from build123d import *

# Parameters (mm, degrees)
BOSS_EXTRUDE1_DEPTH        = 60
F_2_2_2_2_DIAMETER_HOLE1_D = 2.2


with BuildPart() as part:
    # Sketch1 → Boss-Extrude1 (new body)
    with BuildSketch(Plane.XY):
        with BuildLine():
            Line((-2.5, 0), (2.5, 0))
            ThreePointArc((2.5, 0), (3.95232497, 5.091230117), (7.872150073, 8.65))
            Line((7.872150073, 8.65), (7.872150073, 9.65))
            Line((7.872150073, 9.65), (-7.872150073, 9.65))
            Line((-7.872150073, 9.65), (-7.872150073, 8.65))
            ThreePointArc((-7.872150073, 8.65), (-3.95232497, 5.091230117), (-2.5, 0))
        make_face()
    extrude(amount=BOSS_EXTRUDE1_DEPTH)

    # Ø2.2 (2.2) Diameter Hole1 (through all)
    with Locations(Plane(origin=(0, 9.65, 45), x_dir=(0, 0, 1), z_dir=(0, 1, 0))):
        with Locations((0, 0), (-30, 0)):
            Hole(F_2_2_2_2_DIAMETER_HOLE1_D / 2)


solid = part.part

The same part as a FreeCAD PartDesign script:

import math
import FreeCAD as App
import Part
import Sketcher
from FreeCAD import Vector

doc = App.newDocument("Part")
body = doc.addObject("PartDesign::Body", "Body")

# Sketch on XY plane
sketch1 = body.newObject("Sketcher::SketchObject", "Sketch")
sketch1.AttachmentSupport = (doc.getObject("XY_Plane"), [""])
sketch1.MapMode = "FlatFace"
sketch1.addGeometry(Part.LineSegment(Vector(-2.5, 0, 0), Vector(2.5, 0, 0)), False)
sketch1.addGeometry(Part.ArcOfCircle(Part.Circle(Vector(12.15, 0, 0), Vector(0, 0, 1), 9.65), math.radians(116.314657), math.radians(180)), False)
sketch1.addGeometry(Part.LineSegment(Vector(7.87215, 8.65, 0), Vector(7.87215, 9.65, 0)), False)
sketch1.addGeometry(Part.LineSegment(Vector(7.87215, 9.65, 0), Vector(-7.87215, 9.65, 0)), False)
sketch1.addGeometry(Part.LineSegment(Vector(-7.87215, 9.65, 0), Vector(-7.87215, 8.65, 0)), False)
sketch1.addGeometry(Part.ArcOfCircle(Part.Circle(Vector(-12.15, 0, 0), Vector(0, 0, 1), 9.65), math.radians(0), math.radians(63.685343)), False)
sketch1.addConstraint(Sketcher.Constraint("Coincident", 0, 2, 1, 2))
sketch1.addConstraint(Sketcher.Constraint("Coincident", 1, 1, 2, 1))
sketch1.addConstraint(Sketcher.Constraint("Coincident", 2, 2, 3, 1))
sketch1.addConstraint(Sketcher.Constraint("Coincident", 3, 2, 4, 1))
sketch1.addConstraint(Sketcher.Constraint("Coincident", 4, 2, 5, 2))
sketch1.addConstraint(Sketcher.Constraint("Coincident", 5, 1, 0, 1))
sketch1.addConstraint(Sketcher.Constraint("Horizontal", 0))
sketch1.addConstraint(Sketcher.Constraint("Vertical", 2))
sketch1.addConstraint(Sketcher.Constraint("Horizontal", 3))
sketch1.addConstraint(Sketcher.Constraint("Vertical", 4))
sketch1.addConstraint(Sketcher.Constraint("Equal", 1, 5))
sketch1.addConstraint(Sketcher.Constraint("Symmetric", 1, 3, 5, 3, -1, 1))
sketch1.addConstraint(Sketcher.Constraint("Symmetric", 1, 1, 4, 2, -2))
sketch1.addConstraint(Sketcher.Constraint("PointOnObject", 0, 2, -1))
sketch1.addConstraint(Sketcher.Constraint("DistanceX", 0, 1, 0, 2, 5.0))
sketch1.addConstraint(Sketcher.Constraint("DistanceY", 2, 1, 2, 2, 1.0))
sketch1.addConstraint(Sketcher.Constraint("Radius", 1, 9.65))
sketch1.addConstraint(Sketcher.Constraint("DistanceY", -1, 1, 1, 1, 8.65))
pad1 = body.newObject("PartDesign::Pad", "Pad")
pad1.Profile = sketch1
pad1.Length = 60

# Sketch on XZ plane
sketch2 = body.newObject("Sketcher::SketchObject", "Sketch001")
sketch2.AttachmentSupport = (doc.getObject("XZ_Plane"), [""])
sketch2.MapMode = "FlatFace"
sketch2.AttachmentOffset = App.Placement(Vector(0, 0, -9.65), App.Rotation())
sketch2.addGeometry(Part.Circle(Vector(0, 45, 0), Vector(0, 0, 1), 1.1), False)
sketch2.addGeometry(Part.Circle(Vector(0, 15, 0), Vector(0, 0, 1), 1.1), False)
sketch2.addConstraint(Sketcher.Constraint("Equal", 0, 1))
sketch2.addConstraint(Sketcher.Constraint("PointOnObject", 0, 3, -2))
sketch2.addConstraint(Sketcher.Constraint("PointOnObject", 1, 3, -2))
sketch2.addConstraint(Sketcher.Constraint("Diameter", 0, 2.2))
sketch2.addConstraint(Sketcher.Constraint("DistanceY", -1, 1, 0, 3, 45.0))
sketch2.addConstraint(Sketcher.Constraint("DistanceY", -1, 1, 1, 3, 15.0))
doc.recompute()
hole = body.newObject("PartDesign::Hole", "Hole")
hole.Profile = sketch2
hole.ThreadType = "None"
hole.Diameter = 2.2
hole.DepthType = "ThroughAll"
hole.Reversed = True

doc.recompute()
